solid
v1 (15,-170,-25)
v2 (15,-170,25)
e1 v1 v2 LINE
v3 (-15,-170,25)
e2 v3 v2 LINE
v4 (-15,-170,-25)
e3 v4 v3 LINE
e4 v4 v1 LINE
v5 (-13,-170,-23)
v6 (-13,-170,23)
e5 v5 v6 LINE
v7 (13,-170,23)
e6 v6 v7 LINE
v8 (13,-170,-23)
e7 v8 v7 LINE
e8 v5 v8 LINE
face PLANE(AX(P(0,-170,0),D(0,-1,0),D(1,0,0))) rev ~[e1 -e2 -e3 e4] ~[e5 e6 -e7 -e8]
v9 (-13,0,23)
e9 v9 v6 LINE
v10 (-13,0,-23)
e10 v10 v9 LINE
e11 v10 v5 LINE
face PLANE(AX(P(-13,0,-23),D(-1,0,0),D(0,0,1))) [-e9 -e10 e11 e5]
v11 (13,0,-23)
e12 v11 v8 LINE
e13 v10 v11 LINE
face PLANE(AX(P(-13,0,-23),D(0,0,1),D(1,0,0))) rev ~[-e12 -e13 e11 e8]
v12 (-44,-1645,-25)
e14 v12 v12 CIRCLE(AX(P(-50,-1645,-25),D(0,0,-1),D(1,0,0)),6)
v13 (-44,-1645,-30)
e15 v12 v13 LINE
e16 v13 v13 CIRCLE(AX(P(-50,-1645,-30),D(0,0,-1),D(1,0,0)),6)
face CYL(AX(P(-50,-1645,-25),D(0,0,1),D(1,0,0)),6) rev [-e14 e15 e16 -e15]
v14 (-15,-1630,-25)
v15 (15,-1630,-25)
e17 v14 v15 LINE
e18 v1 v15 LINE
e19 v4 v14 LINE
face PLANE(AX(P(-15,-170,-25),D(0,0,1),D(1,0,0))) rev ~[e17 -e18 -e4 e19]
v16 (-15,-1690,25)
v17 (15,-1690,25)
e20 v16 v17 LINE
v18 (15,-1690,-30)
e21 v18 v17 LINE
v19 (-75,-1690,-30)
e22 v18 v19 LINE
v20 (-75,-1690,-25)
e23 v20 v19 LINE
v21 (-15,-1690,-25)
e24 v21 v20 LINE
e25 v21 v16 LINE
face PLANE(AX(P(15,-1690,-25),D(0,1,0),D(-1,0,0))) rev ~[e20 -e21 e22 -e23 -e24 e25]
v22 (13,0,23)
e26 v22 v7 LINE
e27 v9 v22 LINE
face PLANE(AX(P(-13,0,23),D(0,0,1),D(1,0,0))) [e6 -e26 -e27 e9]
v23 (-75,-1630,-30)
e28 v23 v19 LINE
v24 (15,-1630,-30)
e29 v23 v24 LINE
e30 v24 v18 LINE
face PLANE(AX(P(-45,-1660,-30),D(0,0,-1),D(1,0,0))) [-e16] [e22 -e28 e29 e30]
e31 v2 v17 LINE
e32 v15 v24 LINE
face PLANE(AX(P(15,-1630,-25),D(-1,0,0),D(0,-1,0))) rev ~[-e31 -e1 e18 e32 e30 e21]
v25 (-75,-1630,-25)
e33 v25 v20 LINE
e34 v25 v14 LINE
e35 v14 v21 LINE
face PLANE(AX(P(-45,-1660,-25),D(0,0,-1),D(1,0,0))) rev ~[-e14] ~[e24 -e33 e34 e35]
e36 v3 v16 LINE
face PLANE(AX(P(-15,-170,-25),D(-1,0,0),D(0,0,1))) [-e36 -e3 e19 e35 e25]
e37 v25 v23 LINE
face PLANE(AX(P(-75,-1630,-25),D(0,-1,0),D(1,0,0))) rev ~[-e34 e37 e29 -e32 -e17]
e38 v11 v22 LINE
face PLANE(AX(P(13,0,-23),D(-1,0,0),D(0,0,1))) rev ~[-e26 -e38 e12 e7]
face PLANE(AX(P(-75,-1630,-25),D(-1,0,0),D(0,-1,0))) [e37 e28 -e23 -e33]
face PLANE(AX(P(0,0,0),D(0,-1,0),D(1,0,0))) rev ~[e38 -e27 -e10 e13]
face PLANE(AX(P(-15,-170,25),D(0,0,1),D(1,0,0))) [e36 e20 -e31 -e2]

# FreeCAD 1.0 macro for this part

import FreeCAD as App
import Part
import Sketcher

V = App.Vector

doc = App.newDocument("Part")
body = doc.addObject("PartDesign::Body", "Body")

# Sketch on XZ plane
sketch1 = doc.addObject("Sketcher::SketchObject", "Sketch")
body.addObject(sketch1)
sketch1.AttachmentSupport = (doc.XZ_Plane, [""])
sketch1.MapMode = "FlatFace"
sketch1.addGeometry(Part.LineSegment(V(-13, 23, 0), V(-13, -23, 0)), False)
sketch1.addGeometry(Part.LineSegment(V(-13, -23, 0), V(13, -23, 0)), False)
sketch1.addGeometry(Part.LineSegment(V(13, -23, 0), V(13, 23, 0)), False)
sketch1.addGeometry(Part.LineSegment(V(13, 23, 0), V(-13, 23, 0)), False)
sketch1.addConstraint(Sketcher.Constraint("Coincident", 0, 2, 1, 1))
sketch1.addConstraint(Sketcher.Constraint("Coincident", 1, 2, 2, 1))
sketch1.addConstraint(Sketcher.Constraint("Coincident", 2, 2, 3, 1))
sketch1.addConstraint(Sketcher.Constraint("Coincident", 3, 2, 0, 1))
sketch1.addConstraint(Sketcher.Constraint("Vertical", 0))
sketch1.addConstraint(Sketcher.Constraint("Horizontal", 1))
sketch1.addConstraint(Sketcher.Constraint("Vertical", 2))
sketch1.addConstraint(Sketcher.Constraint("Horizontal", 3))
sketch1.addConstraint(Sketcher.Constraint("Symmetric", 0, 2, 2, 2, -1, 1))
sketch1.addConstraint(Sketcher.Constraint("DistanceX", 1, 1, 1, 2, 26.0))
sketch1.addConstraint(Sketcher.Constraint("DistanceY", 0, 2, 0, 1, 46.0))
pad1 = doc.addObject("PartDesign::Pad", "Pad")
body.addObject(pad1)
pad1.Profile = sketch1
pad1.Length = 170

# Sketch on XZ plane
sketch2 = doc.addObject("Sketcher::SketchObject", "Sketch001")
body.addObject(sketch2)
sketch2.AttachmentSupport = (doc.XZ_Plane, [""])
sketch2.MapMode = "FlatFace"
sketch2.AttachmentOffset = App.Placement(V(0, 0, 170), App.Rotation())
sketch2.addGeometry(Part.LineSegment(V(-15, 25, 0), V(-15, -25, 0)), False)
sketch2.addGeometry(Part.LineSegment(V(-15, -25, 0), V(15, -25, 0)), False)
sketch2.addGeometry(Part.LineSegment(V(15, -25, 0), V(15, 25, 0)), False)
sketch2.addGeometry(Part.LineSegment(V(15, 25, 0), V(-15, 25, 0)), False)
sketch2.addConstraint(Sketcher.Constraint("Coincident", 0, 2, 1, 1))
sketch2.addConstraint(Sketcher.Constraint("Coincident", 1, 2, 2, 1))
sketch2.addConstraint(Sketcher.Constraint("Coincident", 2, 2, 3, 1))
sketch2.addConstraint(Sketcher.Constraint("Coincident", 3, 2, 0, 1))
sketch2.addConstraint(Sketcher.Constraint("Vertical", 0))
sketch2.addConstraint(Sketcher.Constraint("Horizontal", 1))
sketch2.addConstraint(Sketcher.Constraint("Vertical", 2))
sketch2.addConstraint(Sketcher.Constraint("Horizontal", 3))
sketch2.addConstraint(Sketcher.Constraint("Symmetric", 0, 2, 2, 2, -1, 1))
sketch2.addConstraint(Sketcher.Constraint("DistanceX", 1, 1, 1, 2, 30.0))
sketch2.addConstraint(Sketcher.Constraint("DistanceY", 0, 2, 0, 1, 50.0))
pad2 = doc.addObject("PartDesign::Pad", "Pad001")
body.addObject(pad2)
pad2.Profile = sketch2
pad2.Length = 1520

# Sketch on XY plane
sketch3 = doc.addObject("Sketcher::SketchObject", "Sketch002")
body.addObject(sketch3)
sketch3.AttachmentSupport = (doc.XY_Plane, [""])
sketch3.MapMode = "FlatFace"
sketch3.AttachmentOffset = App.Placement(V(0, 0, -25), App.Rotation())
sketch3.addGeometry(Part.LineSegment(V(-75, -1690, 0), V(-75, -1630, 0)), False)
sketch3.addGeometry(Part.LineSegment(V(-75, -1630, 0), V(15, -1630, 0)), False)
sketch3.addGeometry(Part.LineSegment(V(15, -1630, 0), V(15, -1690, 0)), False)
sketch3.addGeometry(Part.LineSegment(V(15, -1690, 0), V(-75, -1690, 0)), False)
sketch3.addGeometry(Part.Circle(V(-50, -1645, 0), V(0, 0, 1), 6), False)
sketch3.addConstraint(Sketcher.Constraint("Coincident", 0, 2, 1, 1))
sketch3.addConstraint(Sketcher.Constraint("Coincident", 1, 2, 2, 1))
sketch3.addConstraint(Sketcher.Constraint("Coincident", 2, 2, 3, 1))
sketch3.addConstraint(Sketcher.Constraint("Coincident", 3, 2, 0, 1))
sketch3.addConstraint(Sketcher.Constraint("Vertical", 0))
sketch3.addConstraint(Sketcher.Constraint("Horizontal", 1))
sketch3.addConstraint(Sketcher.Constraint("Vertical", 2))
sketch3.addConstraint(Sketcher.Constraint("Horizontal", 3))
sketch3.addConstraint(Sketcher.Constraint("Diameter", 4, 12.0))
sketch3.addConstraint(Sketcher.Constraint("DistanceX", 1, 1, 1, 2, 90.0))
sketch3.addConstraint(Sketcher.Constraint("DistanceY", 0, 1, 0, 2, 60.0))
sketch3.addConstraint(Sketcher.Constraint("DistanceX", 4, 3, -1, 1, 50.0))
sketch3.addConstraint(Sketcher.Constraint("DistanceY", 4, 3, -1, 1, 1645.0))
sketch3.addConstraint(Sketcher.Constraint("DistanceX", 0, 2, -1, 1, 75.0))
sketch3.addConstraint(Sketcher.Constraint("DistanceY", 0, 2, -1, 1, 1630.0))
pad3 = doc.addObject("PartDesign::Pad", "Pad002")
body.addObject(pad3)
pad3.Profile = sketch3
pad3.Length = 5
pad3.Reversed = True

doc.recompute()
